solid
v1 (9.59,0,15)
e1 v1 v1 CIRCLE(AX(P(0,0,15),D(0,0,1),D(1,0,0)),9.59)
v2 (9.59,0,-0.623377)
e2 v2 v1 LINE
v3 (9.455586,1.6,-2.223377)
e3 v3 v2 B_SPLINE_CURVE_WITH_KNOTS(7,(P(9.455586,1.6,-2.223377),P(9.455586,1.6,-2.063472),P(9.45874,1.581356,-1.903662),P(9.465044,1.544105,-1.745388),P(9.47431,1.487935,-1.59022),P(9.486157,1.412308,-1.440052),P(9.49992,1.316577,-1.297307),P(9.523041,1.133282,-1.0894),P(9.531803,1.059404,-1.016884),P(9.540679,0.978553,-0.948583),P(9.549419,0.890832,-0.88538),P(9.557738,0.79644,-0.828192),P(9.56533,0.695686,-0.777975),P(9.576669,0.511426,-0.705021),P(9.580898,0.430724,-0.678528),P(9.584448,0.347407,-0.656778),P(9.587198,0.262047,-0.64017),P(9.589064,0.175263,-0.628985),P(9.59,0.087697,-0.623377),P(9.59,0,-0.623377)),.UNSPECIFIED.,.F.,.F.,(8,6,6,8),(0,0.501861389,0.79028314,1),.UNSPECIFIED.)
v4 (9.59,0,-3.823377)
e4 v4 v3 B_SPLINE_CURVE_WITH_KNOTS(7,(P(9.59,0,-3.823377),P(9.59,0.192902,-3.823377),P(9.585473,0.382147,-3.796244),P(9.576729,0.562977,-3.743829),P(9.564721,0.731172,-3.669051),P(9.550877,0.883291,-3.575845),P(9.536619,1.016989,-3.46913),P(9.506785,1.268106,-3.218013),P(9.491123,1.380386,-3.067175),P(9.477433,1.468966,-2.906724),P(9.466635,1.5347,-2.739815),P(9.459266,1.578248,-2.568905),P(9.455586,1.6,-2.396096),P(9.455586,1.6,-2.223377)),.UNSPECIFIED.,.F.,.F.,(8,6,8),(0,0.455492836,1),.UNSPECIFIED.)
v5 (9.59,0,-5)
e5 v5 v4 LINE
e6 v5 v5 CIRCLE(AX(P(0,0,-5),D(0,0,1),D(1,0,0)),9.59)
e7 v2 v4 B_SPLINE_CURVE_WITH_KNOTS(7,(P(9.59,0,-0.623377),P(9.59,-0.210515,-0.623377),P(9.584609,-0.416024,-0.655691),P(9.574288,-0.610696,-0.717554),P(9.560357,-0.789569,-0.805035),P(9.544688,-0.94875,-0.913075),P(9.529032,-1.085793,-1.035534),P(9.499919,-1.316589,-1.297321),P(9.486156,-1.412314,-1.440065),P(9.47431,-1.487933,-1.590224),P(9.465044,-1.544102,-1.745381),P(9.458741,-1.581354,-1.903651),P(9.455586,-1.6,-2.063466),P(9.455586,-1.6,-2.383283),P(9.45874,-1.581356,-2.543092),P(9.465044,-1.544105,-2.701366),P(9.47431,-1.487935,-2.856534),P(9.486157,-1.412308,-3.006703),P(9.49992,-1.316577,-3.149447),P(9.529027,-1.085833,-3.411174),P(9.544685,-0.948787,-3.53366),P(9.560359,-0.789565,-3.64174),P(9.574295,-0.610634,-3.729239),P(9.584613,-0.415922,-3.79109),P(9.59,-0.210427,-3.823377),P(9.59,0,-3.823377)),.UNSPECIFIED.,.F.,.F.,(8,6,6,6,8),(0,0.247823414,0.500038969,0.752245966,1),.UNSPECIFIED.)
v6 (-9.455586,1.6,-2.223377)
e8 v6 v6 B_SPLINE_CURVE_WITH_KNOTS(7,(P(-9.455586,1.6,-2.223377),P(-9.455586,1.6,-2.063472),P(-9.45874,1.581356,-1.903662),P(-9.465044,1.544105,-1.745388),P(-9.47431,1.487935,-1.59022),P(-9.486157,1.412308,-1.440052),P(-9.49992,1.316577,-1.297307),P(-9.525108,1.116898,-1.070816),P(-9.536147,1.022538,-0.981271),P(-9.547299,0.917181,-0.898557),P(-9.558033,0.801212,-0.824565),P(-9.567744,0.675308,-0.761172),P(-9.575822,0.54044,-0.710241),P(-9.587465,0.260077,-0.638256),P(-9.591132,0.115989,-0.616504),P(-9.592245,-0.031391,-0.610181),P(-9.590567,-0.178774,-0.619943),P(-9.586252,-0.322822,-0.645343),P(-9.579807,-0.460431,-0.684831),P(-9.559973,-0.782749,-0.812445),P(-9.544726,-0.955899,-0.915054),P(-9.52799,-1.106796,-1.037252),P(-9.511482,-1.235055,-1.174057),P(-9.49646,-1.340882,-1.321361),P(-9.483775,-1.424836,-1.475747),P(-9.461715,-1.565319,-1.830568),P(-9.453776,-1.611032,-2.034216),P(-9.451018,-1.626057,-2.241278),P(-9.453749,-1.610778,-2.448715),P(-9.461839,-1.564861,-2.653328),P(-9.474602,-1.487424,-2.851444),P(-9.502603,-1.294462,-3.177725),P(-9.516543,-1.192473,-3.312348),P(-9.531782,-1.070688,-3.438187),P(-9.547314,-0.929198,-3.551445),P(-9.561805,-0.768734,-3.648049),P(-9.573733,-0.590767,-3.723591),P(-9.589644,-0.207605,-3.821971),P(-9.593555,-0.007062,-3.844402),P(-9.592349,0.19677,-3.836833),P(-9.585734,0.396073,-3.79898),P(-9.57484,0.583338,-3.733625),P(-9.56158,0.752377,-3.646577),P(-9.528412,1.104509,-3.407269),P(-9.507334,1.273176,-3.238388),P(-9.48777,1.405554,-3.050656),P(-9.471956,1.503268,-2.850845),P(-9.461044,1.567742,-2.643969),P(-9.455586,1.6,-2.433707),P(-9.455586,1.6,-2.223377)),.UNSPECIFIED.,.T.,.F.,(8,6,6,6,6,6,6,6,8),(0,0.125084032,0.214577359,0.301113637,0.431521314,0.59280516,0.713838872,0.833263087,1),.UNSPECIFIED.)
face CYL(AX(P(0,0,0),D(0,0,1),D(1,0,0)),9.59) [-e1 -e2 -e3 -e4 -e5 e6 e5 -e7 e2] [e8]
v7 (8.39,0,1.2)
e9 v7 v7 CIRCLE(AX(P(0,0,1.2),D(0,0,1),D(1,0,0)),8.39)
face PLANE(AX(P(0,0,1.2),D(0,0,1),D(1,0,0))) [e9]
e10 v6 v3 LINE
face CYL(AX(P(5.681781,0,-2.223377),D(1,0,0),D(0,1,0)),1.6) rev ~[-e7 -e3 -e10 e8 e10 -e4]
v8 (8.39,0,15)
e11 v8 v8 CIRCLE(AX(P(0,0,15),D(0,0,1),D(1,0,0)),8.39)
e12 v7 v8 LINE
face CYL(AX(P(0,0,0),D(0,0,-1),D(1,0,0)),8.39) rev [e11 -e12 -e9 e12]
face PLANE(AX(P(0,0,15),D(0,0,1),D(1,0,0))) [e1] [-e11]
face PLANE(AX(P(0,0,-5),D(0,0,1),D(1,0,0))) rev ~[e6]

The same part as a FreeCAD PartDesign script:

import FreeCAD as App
import Part
import Sketcher
from FreeCAD import Vector

doc = App.newDocument("Part")
body = doc.addObject("PartDesign::Body", "Body")

sketch1 = body.newObject("Sketcher::SketchObject", "Sketch")
sketch1.AttachmentSupport = (doc.getObject("XY_Plane"), [""])
sketch1.MapMode = "FlatFace"
sketch1.addGeometry(Part.Circle(Vector(0, 0, 0), Vector(0, 0, 1), 10), False)
sketch1.addGeometry(Part.Circle(Vector(0, 0, 0), Vector(0, 0, 1), 8), False)
sketch1.addConstraint(Sketcher.Constraint("Coincident", 0, 3, -1, 1))
sketch1.addConstraint(Sketcher.Constraint("Coincident", 1, 3, -1, 1))
sketch1.addConstraint(Sketcher.Constraint("Diameter", 0, 19.18))
sketch1.addConstraint(Sketcher.Constraint("Diameter", 1, 16.78))
pad1 = body.newObject("PartDesign::Pad", "Pad")
pad1.Profile = sketch1
pad1.Length = 15

sketch2 = body.newObject("Sketcher::SketchObject", "Sketch001")
sketch2.AttachmentSupport = (doc.getObject("XY_Plane"), [""])
sketch2.MapMode = "FlatFace"
sketch2.addGeometry(Part.Circle(Vector(0, 0, 0), Vector(0, 0, 1), 8), False)
sketch2.addConstraint(Sketcher.Constraint("Coincident", 0, 3, -1, 1))
sketch2.addConstraint(Sketcher.Constraint("Diameter", 0, 16.78))
pad2 = body.newObject("PartDesign::Pad", "Pad001")
pad2.Profile = sketch2
pad2.Length = 1.2

sketch3 = body.newObject("Sketcher::SketchObject", "Sketch002")
sketch3.AttachmentSupport = (doc.getObject("XY_Plane"), [""])
sketch3.MapMode = "FlatFace"
sketch3.addGeometry(Part.LineSegment(Vector(-5.7, 3, 0), Vector(-5.7, -3, 0)), False)
sketch3.addGeometry(Part.LineSegment(Vector(-5.7, -3, 0), Vector(-3.7, -3, 0)), False)
sketch3.addGeometry(Part.LineSegment(Vector(-3.7, -3, 0), Vector(-3.7, 3, 0)), False)
sketch3.addGeometry(Part.LineSegment(Vector(-3.7, 3, 0), Vector(-5.7, 3, 0)), False)
sketch3.addGeometry(Part.LineSegment(Vector(3.7, 3, 0), Vector(3.7, -3, 0)), False)
sketch3.addGeometry(Part.LineSegment(Vector(3.7, -3, 0), Vector(5.7, -3, 0)), False)
sketch3.addGeometry(Part.LineSegment(Vector(5.7, -3, 0), Vector(5.7, 3, 0)), False)
sketch3.addGeometry(Part.LineSegment(Vector(5.7, 3, 0), Vector(3.7, 3, 0)), False)
sketch3.addConstraint(Sketcher.Constraint("Coincident", 0, 2, 1, 1))
sketch3.addConstraint(Sketcher.Constraint("Coincident", 1, 2, 2, 1))
sketch3.addConstraint(Sketcher.Constraint("Coincident", 2, 2, 3, 1))
sketch3.addConstraint(Sketcher.Constraint("Coincident", 3, 2, 0, 1))
sketch3.addConstraint(Sketcher.Constraint("Coincident", 4, 2, 5, 1))
sketch3.addConstraint(Sketcher.Constraint("Coincident", 5, 2, 6, 1))
sketch3.addConstraint(Sketcher.Constraint("Coincident", 6, 2, 7, 1))
sketch3.addConstraint(Sketcher.Constraint("Coincident", 7, 2, 4, 1))
sketch3.addConstraint(Sketcher.Constraint("Vertical", 0))
sketch3.addConstraint(Sketcher.Constraint("Horizontal", 1))
sketch3.addConstraint(Sketcher.Constraint("Vertical", 2))
sketch3.addConstraint(Sketcher.Constraint("Horizontal", 3))
sketch3.addConstraint(Sketcher.Constraint("Vertical", 4))
sketch3.addConstraint(Sketcher.Constraint("Horizontal", 5))
sketch3.addConstraint(Sketcher.Constraint("Vertical", 6))
sketch3.addConstraint(Sketcher.Constraint("Horizontal", 7))
sketch3.addConstraint(Sketcher.Constraint("Symmetric", 2, 2, 4, 2, -1, 1))
sketch3.addConstraint(Sketcher.Constraint("Symmetric", 0, 2, 6, 2, -1, 1))
sketch3.addConstraint(Sketcher.Constraint("Horizontal", 1, 2, 4, 2))
sketch3.addConstraint(Sketcher.Constraint("DistanceX", 1, 1, 1, 2, 2.0))
sketch3.addConstraint(Sketcher.Constraint("DistanceY", 0, 2, 0, 1, 6.0))
sketch3.addConstraint(Sketcher.Constraint("DistanceX", 0, 2, -1, 1, 5.681781))
pad3 = body.newObject("PartDesign::Pad", "Pad002")
pad3.Profile = sketch3
pad3.Length = 5
pad3.Reversed = True

sketch4 = body.newObject("Sketcher::SketchObject", "Sketch003")
sketch4.AttachmentSupport = (doc.getObject("YZ_Plane"), [""])
sketch4.MapMode = "FlatFace"
sketch4.AttachmentOffset = App.Placement(Vector(0, 0, 5.681781), App.Rotation())
sketch4.addGeometry(Part.Circle(Vector(0, -2.2, 0), Vector(0, 0, 1), 1.6), False)
sketch4.addConstraint(Sketcher.Constraint("PointOnObject", 0, 3, -2))
sketch4.addConstraint(Sketcher.Constraint("Diameter", 0, 3.2))
sketch4.addConstraint(Sketcher.Constraint("DistanceY", 0, 3, -1, 1, 2.223377))
pocket1 = body.newObject("PartDesign::Pocket", "Pocket")
pocket1.Profile = sketch4
pocket1.Type = "ThroughAll"

sketch5 = body.newObject("Sketcher::SketchObject", "Sketch004")
sketch5.AttachmentSupport = (doc.getObject("XY_Plane"), [""])
sketch5.MapMode = "FlatFace"
sketch5.addGeometry(Part.Circle(Vector(0, 0, 0), Vector(0, 0, 1), 8), False)
sketch5.addConstraint(Sketcher.Constraint("Coincident", 0, 3, -1, 1))
sketch5.addConstraint(Sketcher.Constraint("Diameter", 0, 16.78))
pad4 = body.newObject("PartDesign::Pad", "Pad003")
pad4.Profile = sketch5
pad4.Length = 5
pad4.Reversed = True

sketch6 = body.newObject("Sketcher::SketchObject", "Sketch005")
sketch6.AttachmentSupport = (doc.getObject("XY_Plane"), [""])
sketch6.MapMode = "FlatFace"
sketch6.addGeometry(Part.Circle(Vector(0, 0, 0), Vector(0, 0, 1), 10), False)
sketch6.addGeometry(Part.Circle(Vector(0, 0, 0), Vector(0, 0, 1), 8), False)
sketch6.addConstraint(Sketcher.Constraint("Coincident", 0, 3, -1, 1))
sketch6.addConstraint(Sketcher.Constraint("Coincident", 1, 3, -1, 1))
sketch6.addConstraint(Sketcher.Constraint("Diameter", 0, 19.18))
sketch6.addConstraint(Sketcher.Constraint("Diameter", 1, 16.78))
pad5 = body.newObject("PartDesign::Pad", "Pad004")
pad5.Profile = sketch6
pad5.Length = 5
pad5.Reversed = True

sketch7 = body.newObject("Sketcher::SketchObject", "Sketch006")
sketch7.AttachmentSupport = (doc.getObject("YZ_Plane"), [""])
sketch7.MapMode = "FlatFace"
sketch7.AttachmentOffset = App.Placement(Vector(0, 0, 5.681781), App.Rotation())
sketch7.addGeometry(Part.Circle(Vector(0, -2.2, 0), Vector(0, 0, 1), 1.6), False)
sketch7.addConstraint(Sketcher.Constraint("PointOnObject", 0, 3, -2))
sketch7.addConstraint(Sketcher.Constraint("Diameter", 0, 3.2))
sketch7.addConstraint(Sketcher.Constraint("DistanceY", 0, 3, -1, 1, 2.223377))
pocket2 = body.newObject("PartDesign::Pocket", "Pocket001")
pocket2.Profile = sketch7
pocket2.Length = 79.4
pocket2.Midplane = True

doc.recompute()
